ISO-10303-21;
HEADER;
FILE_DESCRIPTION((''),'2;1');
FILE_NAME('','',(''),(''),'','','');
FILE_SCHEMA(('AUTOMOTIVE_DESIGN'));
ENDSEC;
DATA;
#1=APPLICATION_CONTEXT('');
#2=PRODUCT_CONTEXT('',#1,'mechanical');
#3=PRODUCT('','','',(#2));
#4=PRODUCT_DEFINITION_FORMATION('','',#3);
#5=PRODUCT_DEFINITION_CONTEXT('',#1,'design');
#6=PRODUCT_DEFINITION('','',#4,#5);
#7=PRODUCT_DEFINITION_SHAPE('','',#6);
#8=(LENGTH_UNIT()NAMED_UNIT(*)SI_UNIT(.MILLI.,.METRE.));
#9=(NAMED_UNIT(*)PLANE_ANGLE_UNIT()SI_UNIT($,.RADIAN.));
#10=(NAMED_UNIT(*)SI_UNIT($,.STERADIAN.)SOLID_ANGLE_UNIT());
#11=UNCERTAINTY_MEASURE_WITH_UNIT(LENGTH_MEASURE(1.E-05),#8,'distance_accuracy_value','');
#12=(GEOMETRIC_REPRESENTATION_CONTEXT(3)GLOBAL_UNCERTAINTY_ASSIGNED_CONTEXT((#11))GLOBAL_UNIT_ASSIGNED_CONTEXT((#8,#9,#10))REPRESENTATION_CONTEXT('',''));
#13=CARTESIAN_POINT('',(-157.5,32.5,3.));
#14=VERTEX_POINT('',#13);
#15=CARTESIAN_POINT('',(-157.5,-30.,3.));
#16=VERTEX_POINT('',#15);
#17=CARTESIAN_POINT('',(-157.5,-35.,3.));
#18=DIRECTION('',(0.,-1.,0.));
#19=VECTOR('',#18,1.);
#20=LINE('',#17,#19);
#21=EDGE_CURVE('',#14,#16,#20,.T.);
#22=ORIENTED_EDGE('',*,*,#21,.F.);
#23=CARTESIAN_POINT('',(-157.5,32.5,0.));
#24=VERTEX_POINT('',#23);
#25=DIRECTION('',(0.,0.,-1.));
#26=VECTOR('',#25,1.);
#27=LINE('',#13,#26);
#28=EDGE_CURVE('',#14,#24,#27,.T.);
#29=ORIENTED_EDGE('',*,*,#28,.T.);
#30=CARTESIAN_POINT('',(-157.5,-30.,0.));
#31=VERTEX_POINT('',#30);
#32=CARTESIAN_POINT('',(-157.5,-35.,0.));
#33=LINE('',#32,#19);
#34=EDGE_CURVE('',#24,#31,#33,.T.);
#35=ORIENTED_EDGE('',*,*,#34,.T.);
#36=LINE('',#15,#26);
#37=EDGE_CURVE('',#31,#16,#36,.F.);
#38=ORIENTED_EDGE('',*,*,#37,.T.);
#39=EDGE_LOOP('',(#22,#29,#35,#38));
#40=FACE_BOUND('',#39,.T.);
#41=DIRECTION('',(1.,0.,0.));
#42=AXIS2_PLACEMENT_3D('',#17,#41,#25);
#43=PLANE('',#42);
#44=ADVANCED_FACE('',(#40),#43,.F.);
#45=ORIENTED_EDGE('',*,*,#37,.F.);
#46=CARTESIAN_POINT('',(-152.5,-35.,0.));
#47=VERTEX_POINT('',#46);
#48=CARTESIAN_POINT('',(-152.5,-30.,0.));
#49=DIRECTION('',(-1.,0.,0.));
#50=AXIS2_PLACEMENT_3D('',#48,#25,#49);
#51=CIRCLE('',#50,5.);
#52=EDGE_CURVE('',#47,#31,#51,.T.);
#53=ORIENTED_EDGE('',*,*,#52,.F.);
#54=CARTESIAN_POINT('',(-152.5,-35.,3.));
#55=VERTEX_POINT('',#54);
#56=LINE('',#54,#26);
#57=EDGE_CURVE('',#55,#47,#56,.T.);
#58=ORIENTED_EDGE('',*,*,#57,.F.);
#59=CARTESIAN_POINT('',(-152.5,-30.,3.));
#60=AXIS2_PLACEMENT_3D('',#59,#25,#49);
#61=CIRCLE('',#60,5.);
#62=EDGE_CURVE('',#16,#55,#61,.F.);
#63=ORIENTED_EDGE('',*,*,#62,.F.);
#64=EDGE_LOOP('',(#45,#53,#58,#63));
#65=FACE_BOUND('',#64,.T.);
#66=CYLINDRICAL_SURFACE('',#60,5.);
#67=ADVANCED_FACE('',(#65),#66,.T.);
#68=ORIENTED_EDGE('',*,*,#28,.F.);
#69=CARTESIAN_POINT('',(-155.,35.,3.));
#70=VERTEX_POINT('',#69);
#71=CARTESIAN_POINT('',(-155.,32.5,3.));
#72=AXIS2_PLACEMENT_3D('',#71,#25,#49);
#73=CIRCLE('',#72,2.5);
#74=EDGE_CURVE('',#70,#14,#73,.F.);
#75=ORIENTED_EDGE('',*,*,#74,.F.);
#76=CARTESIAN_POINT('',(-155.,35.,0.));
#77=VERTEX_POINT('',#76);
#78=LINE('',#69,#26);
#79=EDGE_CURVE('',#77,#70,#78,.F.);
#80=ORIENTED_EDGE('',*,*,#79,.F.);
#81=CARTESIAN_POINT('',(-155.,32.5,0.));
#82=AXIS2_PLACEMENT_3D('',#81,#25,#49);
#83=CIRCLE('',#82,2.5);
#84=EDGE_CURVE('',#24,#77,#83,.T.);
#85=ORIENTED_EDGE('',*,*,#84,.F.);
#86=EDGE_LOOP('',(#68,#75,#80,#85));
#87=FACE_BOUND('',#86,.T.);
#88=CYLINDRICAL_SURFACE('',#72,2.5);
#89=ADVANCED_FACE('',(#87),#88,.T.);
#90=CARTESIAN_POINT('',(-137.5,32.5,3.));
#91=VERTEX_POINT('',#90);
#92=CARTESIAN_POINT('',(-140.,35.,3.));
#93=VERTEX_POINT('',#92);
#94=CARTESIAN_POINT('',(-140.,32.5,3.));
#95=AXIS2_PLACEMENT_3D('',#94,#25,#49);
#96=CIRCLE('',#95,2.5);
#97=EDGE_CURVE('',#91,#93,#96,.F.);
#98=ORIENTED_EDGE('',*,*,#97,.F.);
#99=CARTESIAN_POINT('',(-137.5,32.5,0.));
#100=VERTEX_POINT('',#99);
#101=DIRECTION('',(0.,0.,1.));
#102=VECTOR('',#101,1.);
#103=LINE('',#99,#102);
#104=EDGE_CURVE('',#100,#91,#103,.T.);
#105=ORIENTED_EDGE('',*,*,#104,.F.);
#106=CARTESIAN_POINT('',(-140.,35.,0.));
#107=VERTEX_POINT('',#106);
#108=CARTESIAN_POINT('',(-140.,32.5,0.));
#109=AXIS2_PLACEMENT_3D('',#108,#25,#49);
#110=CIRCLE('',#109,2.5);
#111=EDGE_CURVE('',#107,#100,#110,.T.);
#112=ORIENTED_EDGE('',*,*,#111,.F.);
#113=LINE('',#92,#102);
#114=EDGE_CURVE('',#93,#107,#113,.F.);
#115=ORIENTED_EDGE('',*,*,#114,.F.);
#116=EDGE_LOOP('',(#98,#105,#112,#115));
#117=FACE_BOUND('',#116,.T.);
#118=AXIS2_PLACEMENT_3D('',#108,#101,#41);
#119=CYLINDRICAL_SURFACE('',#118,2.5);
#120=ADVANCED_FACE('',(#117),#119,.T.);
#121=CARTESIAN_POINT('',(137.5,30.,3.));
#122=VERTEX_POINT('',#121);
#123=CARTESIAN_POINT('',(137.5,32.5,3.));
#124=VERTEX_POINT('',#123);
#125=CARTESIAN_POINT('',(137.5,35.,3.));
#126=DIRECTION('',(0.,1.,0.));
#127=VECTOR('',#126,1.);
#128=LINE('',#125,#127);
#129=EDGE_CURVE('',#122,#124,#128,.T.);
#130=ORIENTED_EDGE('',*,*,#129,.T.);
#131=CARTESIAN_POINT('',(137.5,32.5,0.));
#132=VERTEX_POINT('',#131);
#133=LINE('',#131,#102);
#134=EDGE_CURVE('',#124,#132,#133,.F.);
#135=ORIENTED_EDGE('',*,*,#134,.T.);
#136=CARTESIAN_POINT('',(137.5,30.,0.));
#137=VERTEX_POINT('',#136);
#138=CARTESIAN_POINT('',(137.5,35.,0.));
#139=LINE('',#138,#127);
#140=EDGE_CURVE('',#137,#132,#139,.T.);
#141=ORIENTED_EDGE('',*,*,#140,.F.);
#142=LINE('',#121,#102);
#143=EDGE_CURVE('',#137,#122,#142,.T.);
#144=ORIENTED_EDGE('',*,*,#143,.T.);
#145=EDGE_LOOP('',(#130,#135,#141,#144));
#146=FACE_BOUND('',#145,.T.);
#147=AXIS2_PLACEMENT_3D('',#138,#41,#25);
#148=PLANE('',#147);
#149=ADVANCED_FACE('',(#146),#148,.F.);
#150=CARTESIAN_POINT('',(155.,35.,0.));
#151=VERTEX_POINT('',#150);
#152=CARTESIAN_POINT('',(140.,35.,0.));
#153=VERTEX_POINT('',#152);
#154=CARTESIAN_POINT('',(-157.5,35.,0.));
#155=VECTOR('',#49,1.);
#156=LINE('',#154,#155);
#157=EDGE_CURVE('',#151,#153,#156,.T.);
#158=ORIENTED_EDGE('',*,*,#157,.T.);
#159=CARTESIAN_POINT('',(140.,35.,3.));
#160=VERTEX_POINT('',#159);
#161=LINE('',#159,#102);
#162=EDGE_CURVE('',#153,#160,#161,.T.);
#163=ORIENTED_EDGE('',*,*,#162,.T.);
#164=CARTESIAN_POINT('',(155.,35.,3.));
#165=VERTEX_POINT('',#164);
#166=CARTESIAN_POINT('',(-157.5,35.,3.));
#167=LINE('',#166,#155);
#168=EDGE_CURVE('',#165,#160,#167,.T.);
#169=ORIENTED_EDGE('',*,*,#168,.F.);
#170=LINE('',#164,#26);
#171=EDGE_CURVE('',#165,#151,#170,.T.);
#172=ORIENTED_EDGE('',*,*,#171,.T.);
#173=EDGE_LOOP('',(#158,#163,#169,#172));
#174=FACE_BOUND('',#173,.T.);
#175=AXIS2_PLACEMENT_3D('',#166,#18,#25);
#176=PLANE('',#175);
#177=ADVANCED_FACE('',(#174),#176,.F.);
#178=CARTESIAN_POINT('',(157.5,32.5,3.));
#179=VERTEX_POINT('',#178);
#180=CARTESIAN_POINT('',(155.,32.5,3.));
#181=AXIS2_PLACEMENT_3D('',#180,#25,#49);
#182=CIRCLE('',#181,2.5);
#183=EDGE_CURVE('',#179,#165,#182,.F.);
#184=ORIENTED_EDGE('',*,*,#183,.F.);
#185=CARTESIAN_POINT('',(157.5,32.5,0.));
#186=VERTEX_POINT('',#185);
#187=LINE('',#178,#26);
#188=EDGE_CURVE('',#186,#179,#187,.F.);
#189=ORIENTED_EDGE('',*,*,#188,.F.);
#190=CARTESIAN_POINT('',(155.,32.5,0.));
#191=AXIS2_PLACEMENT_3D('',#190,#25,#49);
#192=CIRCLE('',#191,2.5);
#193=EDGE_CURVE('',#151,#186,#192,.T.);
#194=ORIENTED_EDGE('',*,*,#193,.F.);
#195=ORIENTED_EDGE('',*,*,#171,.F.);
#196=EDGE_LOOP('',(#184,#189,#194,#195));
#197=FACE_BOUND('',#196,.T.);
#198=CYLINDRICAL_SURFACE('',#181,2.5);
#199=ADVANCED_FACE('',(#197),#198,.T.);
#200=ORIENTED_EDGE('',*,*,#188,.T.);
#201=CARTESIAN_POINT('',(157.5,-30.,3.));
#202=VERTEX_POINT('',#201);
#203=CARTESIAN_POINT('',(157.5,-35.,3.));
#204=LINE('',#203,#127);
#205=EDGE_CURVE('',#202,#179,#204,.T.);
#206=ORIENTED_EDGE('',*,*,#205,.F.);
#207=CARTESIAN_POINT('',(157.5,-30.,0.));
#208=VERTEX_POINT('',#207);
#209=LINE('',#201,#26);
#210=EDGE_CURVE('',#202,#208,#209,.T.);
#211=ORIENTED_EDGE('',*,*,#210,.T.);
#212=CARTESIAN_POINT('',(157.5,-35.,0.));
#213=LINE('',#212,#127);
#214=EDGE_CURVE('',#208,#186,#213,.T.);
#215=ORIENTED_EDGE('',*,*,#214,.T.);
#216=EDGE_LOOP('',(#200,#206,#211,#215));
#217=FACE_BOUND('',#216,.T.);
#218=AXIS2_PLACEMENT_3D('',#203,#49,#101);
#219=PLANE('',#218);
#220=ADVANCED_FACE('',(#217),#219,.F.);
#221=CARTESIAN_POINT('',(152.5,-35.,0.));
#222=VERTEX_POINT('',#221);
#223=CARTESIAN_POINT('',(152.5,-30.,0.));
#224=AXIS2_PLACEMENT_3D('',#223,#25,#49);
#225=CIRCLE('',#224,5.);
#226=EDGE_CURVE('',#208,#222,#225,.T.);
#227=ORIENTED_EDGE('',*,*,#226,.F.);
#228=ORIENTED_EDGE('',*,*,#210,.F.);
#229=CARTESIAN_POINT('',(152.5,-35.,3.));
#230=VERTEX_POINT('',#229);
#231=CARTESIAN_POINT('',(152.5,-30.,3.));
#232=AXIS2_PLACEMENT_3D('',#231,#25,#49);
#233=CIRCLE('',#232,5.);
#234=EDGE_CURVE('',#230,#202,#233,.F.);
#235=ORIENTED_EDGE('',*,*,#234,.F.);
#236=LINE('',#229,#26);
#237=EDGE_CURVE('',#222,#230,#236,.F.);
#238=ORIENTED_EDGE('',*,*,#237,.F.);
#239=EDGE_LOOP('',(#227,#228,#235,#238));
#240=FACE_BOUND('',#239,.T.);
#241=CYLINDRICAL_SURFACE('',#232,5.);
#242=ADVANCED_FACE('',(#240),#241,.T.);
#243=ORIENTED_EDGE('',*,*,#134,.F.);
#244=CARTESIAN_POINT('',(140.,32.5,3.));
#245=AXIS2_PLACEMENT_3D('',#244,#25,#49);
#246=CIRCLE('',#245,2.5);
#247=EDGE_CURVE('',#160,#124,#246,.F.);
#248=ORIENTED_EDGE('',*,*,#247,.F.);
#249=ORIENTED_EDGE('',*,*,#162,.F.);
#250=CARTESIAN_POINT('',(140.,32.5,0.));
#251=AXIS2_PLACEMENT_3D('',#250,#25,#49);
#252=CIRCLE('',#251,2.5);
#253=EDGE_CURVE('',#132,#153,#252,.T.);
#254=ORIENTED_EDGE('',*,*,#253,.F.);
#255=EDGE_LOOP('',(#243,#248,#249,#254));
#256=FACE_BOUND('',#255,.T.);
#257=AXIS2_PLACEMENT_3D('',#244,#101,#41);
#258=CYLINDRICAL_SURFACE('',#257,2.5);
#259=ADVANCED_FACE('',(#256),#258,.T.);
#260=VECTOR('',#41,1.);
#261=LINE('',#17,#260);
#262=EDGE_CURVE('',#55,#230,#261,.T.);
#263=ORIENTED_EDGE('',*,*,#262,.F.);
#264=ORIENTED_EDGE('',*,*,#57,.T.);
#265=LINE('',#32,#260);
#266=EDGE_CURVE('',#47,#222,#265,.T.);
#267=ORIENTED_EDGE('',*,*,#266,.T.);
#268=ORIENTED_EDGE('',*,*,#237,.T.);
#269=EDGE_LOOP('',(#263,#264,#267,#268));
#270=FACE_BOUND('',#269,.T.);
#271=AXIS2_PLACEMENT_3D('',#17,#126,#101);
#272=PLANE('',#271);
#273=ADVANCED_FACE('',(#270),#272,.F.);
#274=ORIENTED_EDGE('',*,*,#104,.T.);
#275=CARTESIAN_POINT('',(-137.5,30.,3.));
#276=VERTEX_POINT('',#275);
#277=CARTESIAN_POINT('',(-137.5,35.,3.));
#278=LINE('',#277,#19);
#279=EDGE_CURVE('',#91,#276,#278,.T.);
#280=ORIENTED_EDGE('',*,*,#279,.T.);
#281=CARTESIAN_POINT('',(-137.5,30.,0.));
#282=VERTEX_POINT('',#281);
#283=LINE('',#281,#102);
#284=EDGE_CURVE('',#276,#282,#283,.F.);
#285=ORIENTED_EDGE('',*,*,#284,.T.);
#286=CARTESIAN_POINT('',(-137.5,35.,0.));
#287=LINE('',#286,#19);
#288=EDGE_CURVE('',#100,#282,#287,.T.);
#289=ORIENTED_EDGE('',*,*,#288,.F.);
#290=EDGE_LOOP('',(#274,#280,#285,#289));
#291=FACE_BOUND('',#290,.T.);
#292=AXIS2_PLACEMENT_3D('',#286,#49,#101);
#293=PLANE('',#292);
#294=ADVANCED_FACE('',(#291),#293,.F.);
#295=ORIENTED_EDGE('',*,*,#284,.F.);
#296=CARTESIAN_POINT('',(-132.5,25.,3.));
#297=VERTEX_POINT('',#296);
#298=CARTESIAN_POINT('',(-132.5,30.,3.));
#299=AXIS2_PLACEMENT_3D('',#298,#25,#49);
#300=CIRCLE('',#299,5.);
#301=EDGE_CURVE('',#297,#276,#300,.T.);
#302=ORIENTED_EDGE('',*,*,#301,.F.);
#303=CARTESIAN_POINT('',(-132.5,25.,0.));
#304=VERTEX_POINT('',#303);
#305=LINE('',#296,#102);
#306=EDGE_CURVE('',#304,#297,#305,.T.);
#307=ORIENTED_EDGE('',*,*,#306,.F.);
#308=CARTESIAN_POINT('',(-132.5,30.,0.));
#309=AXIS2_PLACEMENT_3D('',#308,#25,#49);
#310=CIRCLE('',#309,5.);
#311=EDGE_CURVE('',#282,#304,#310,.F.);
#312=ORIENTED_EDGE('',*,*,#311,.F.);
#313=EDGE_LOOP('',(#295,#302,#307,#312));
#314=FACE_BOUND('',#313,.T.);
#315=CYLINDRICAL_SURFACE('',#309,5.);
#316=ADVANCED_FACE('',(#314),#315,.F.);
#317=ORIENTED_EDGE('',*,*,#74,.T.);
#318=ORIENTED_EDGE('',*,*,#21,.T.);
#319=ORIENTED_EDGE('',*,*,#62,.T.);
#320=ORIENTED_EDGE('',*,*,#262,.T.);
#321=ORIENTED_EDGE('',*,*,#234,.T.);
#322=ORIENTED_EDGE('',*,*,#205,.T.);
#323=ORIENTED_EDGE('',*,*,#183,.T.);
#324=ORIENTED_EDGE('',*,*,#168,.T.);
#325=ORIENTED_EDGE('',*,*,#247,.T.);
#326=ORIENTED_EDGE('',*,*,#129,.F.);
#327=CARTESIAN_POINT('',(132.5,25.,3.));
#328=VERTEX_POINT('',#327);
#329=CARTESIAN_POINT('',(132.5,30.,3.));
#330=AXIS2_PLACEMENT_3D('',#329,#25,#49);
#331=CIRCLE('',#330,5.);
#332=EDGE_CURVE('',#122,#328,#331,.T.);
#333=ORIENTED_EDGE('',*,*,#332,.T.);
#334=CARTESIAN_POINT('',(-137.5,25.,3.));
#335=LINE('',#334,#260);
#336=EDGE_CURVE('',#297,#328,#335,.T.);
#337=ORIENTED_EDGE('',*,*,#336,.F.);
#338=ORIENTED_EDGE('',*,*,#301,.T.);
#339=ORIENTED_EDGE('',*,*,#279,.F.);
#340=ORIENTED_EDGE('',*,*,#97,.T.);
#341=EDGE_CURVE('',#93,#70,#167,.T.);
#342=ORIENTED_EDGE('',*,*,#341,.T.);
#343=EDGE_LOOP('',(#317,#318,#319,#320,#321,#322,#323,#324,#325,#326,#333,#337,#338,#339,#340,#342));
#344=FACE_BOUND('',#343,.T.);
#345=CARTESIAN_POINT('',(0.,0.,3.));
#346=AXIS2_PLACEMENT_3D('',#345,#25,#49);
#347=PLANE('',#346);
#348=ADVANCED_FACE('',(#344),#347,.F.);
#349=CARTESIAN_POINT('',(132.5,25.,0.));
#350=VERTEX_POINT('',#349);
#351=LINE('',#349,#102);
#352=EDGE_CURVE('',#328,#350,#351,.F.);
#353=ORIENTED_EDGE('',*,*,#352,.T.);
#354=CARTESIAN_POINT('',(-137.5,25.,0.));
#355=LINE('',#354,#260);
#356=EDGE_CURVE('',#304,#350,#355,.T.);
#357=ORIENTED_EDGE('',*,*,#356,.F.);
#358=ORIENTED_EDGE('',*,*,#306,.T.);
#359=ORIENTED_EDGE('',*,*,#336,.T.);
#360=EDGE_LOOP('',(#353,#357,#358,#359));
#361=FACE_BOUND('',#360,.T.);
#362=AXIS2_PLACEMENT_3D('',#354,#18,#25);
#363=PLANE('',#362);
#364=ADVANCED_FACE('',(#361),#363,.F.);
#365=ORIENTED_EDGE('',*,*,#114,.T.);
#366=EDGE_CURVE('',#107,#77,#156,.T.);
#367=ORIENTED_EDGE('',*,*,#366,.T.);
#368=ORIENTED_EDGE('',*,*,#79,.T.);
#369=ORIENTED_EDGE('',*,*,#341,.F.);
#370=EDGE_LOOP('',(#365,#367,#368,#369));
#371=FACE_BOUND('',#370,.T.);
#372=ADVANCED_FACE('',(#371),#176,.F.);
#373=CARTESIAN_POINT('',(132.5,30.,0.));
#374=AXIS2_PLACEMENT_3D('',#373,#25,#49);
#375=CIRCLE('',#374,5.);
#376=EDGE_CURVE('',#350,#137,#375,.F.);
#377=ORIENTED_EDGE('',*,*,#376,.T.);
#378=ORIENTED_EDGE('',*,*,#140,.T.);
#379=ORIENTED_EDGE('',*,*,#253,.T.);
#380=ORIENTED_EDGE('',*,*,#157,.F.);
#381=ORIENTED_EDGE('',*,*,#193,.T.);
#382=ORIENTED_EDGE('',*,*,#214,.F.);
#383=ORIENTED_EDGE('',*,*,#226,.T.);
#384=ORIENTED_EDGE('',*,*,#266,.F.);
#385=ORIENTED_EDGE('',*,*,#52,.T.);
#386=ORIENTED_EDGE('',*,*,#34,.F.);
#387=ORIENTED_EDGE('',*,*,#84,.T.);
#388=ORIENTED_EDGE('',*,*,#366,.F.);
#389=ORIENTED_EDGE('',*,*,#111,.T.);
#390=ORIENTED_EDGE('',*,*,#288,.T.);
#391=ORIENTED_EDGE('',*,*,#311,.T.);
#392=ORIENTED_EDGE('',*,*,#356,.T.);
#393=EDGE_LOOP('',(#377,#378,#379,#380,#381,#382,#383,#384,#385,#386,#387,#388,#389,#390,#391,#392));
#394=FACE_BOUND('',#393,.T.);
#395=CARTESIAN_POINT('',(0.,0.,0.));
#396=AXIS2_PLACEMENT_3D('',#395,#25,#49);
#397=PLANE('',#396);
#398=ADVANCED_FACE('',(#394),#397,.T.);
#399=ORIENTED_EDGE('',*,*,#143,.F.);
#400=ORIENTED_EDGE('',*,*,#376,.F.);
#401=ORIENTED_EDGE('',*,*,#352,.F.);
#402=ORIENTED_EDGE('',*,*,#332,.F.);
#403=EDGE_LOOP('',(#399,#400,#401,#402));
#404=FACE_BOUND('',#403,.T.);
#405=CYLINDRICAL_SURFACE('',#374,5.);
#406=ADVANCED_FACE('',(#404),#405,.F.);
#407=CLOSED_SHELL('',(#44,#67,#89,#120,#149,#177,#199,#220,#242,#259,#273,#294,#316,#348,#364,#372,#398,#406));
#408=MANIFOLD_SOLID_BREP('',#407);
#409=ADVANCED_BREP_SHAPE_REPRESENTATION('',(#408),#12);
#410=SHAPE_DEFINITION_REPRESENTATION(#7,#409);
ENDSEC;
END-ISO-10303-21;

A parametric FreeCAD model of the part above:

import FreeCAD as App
import Part
import Sketcher
from FreeCAD import Vector
Q = App.Units.Quantity


def edges_at(feature, points):
    """Names of the edges that pass closest to the given points."""
    edges = feature.Shape.Edges
    near = lambda p: min(range(len(edges)), key=lambda i: edges[i].distToShape(Part.Vertex(*p))[0])
    return sorted({f"Edge{near(p) + 1}" for p in points})


def add_polygon(sketch, points):
    """Adds a closed chain of lines whose ends are joined by coincident constraints."""
    first, n = sketch.GeometryCount, len(points)
    for a, b in zip(points, points[1:] + points[:1]):
        sketch.addGeometry(Part.LineSegment(App.Vector(*a, 0), App.Vector(*b, 0)), False)
    for i in range(n):
        sketch.addConstraint(Sketcher.Constraint("Coincident", first + i, 2, first + (i + 1) % n, 1))

doc = App.newDocument("Part")
body = doc.addObject("PartDesign::Body", "Body")

# Sketch on XY plane
sketch1 = body.newObject("Sketcher::SketchObject", "Sketch")
sketch1.AttachmentSupport = (doc.getObject("XY_Plane"), [""])
sketch1.MapMode = "FlatFace"
add_polygon(sketch1, [(-158, 35), (-158, -35), (158, -35), (158, 35)])  # lines 0-3
sketch1.addConstraint(Sketcher.Constraint("Vertical", 0))
sketch1.addConstraint(Sketcher.Constraint("Horizontal", 1))
sketch1.addConstraint(Sketcher.Constraint("Vertical", 2))
sketch1.addConstraint(Sketcher.Constraint("Horizontal", 3))
sketch1.addConstraint(Sketcher.Constraint("Symmetric", 0, 2, 2, 2, -1, 1))
sketch1.addConstraint(Sketcher.Constraint("DistanceX", 1, 1, 1, 2, Q("315 mm")))
sketch1.addConstraint(Sketcher.Constraint("DistanceY", 0, 2, 0, 1, Q("70 mm")))
pad1 = body.newObject("PartDesign::Pad", "Pad")
pad1.Profile = sketch1
pad1.Length = 3

# Sketch on XY plane
sketch2 = body.newObject("Sketcher::SketchObject", "Sketch001")
sketch2.AttachmentSupport = (doc.getObject("XY_Plane"), [""])
sketch2.MapMode = "FlatFace"
sketch2.AttachmentOffset = App.Placement(Vector(0, 0, 3), App.Rotation())
add_polygon(sketch2, [(-138, 35), (-138, 25), (138, 25), (138, 35)])  # lines 0-3
sketch2.addConstraint(Sketcher.Constraint("Vertical", 0))
sketch2.addConstraint(Sketcher.Constraint("Horizontal", 1))
sketch2.addConstraint(Sketcher.Constraint("Vertical", 2))
sketch2.addConstraint(Sketcher.Constraint("Horizontal", 3))
sketch2.addConstraint(Sketcher.Constraint("DistanceX", 1, 1, 1, 2, Q("275 mm")))
sketch2.addConstraint(Sketcher.Constraint("DistanceY", 0, 2, 0, 1, Q("10 mm")))
sketch2.addConstraint(Sketcher.Constraint("DistanceY", -1, 1, 0, 2, Q("25 mm")))
sketch2.addConstraint(Sketcher.Constraint("DistanceX", 0, 2, -1, 1, Q("137.5 mm")))
pocket1 = body.newObject("PartDesign::Pocket", "Pocket")
pocket1.Profile = sketch2
pocket1.Length = 3
doc.recompute()

fillet = body.newObject("PartDesign::Fillet", "Fillet")
fillet.Base = (pocket1, edges_at(pocket1, [
    (-137.5, 25, 1.5),
    (137.5, 25, 1.5),
    (157.5, -35, 1.5),
    (-157.5, -35, 1.5),
]))
fillet.Radius = 5
doc.recompute()

fillet2 = body.newObject("PartDesign::Fillet", "Fillet001")
fillet2.Base = (fillet, edges_at(fillet, [
    (-137.5, 35, 1.5),
    (137.5, 35, 1.5),
    (-157.5, 35, 1.5),
    (157.5, 35, 1.5),
]))
fillet2.Radius = 2.5

doc.recompute()
